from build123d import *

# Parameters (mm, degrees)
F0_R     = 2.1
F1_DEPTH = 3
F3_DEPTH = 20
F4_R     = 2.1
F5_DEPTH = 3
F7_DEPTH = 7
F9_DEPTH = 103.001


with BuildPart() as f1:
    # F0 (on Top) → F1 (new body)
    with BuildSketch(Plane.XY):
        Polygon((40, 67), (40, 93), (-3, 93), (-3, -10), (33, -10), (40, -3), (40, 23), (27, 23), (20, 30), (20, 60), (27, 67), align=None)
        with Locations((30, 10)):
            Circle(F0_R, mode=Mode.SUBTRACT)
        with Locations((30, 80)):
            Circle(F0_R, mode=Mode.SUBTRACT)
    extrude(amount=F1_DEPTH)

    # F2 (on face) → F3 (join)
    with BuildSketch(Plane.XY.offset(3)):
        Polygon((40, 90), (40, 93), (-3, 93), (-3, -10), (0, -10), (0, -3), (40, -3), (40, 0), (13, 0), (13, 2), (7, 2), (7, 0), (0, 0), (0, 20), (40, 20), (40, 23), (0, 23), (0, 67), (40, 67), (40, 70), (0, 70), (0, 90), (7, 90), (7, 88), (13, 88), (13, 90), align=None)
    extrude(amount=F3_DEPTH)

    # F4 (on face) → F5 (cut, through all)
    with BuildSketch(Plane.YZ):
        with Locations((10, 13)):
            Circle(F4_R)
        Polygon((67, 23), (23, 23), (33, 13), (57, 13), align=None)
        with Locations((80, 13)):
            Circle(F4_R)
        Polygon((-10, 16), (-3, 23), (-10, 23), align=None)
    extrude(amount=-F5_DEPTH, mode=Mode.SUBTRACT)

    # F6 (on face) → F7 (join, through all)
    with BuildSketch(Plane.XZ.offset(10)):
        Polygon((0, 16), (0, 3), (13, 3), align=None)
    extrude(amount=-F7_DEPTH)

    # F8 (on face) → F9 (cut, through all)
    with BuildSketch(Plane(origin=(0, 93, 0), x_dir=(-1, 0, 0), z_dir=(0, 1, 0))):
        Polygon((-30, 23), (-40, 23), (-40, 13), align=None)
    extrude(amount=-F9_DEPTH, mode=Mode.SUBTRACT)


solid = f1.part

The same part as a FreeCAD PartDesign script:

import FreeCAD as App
import Part
import Sketcher

doc = App.newDocument("Part")
body = doc.addObject("PartDesign::Body", "Body")

# Sketch on XY plane
sketch1 = doc.addObject("Sketcher::SketchObject", "Sketch")
body.addObject(sketch1)
sketch1.AttachmentSupport = (doc.XY_Plane, [""])
sketch1.MapMode = "FlatFace"
sketch1.addGeometry(Part.LineSegment(App.Vector(40, 67, 0), App.Vector(40, 93, 0)), False)
sketch1.addGeometry(Part.LineSegment(App.Vector(40, 93, 0), App.Vector(-3, 93, 0)), False)
sketch1.addGeometry(Part.LineSegment(App.Vector(-3, 93, 0), App.Vector(-3, -10, 0)), False)
sketch1.addGeometry(Part.LineSegment(App.Vector(-3, -10, 0), App.Vector(33, -10, 0)), False)
sketch1.addGeometry(Part.LineSegment(App.Vector(33, -10, 0), App.Vector(40, -3, 0)), False)
sketch1.addGeometry(Part.LineSegment(App.Vector(40, -3, 0), App.Vector(40, 23, 0)), False)
sketch1.addGeometry(Part.LineSegment(App.Vector(40, 23, 0), App.Vector(27, 23, 0)), False)
sketch1.addGeometry(Part.LineSegment(App.Vector(27, 23, 0), App.Vector(20, 30, 0)), False)
sketch1.addGeometry(Part.LineSegment(App.Vector(20, 30, 0), App.Vector(20, 60, 0)), False)
sketch1.addGeometry(Part.LineSegment(App.Vector(20, 60, 0), App.Vector(27, 67, 0)), False)
sketch1.addGeometry(Part.LineSegment(App.Vector(27, 67, 0), App.Vector(40, 67, 0)), False)
sketch1.addGeometry(Part.Circle(App.Vector(30, 10, 0), App.Vector(0, 0, 1), 2.1), False)
sketch1.addGeometry(Part.Circle(App.Vector(30, 80, 0), App.Vector(0, 0, 1), 2.1), False)
sketch1.addConstraint(Sketcher.Constraint("Coincident", 0, 2, 1, 1))
sketch1.addConstraint(Sketcher.Constraint("Coincident", 1, 2, 2, 1))
sketch1.addConstraint(Sketcher.Constraint("Coincident", 2, 2, 3, 1))
sketch1.addConstraint(Sketcher.Constraint("Coincident", 3, 2, 4, 1))
sketch1.addConstraint(Sketcher.Constraint("Coincident", 4, 2, 5, 1))
sketch1.addConstraint(Sketcher.Constraint("Coincident", 5, 2, 6, 1))
sketch1.addConstraint(Sketcher.Constraint("Coincident", 6, 2, 7, 1))
sketch1.addConstraint(Sketcher.Constraint("Coincident", 7, 2, 8, 1))
sketch1.addConstraint(Sketcher.Constraint("Coincident", 8, 2, 9, 1))
sketch1.addConstraint(Sketcher.Constraint("Coincident", 9, 2, 10, 1))
sketch1.addConstraint(Sketcher.Constraint("Coincident", 10, 2, 0, 1))
sketch1.addConstraint(Sketcher.Constraint("Vertical", 0))
sketch1.addConstraint(Sketcher.Constraint("Horizontal", 1))
sketch1.addConstraint(Sketcher.Constraint("Vertical", 2))
sketch1.addConstraint(Sketcher.Constraint("Horizontal", 3))
sketch1.addConstraint(Sketcher.Constraint("Vertical", 5))
sketch1.addConstraint(Sketcher.Constraint("Horizontal", 6))
sketch1.addConstraint(Sketcher.Constraint("Vertical", 8))
sketch1.addConstraint(Sketcher.Constraint("Horizontal", 10))
sketch1.addConstraint(Sketcher.Constraint("Equal", 11, 12))
sketch1.addConstraint(Sketcher.Constraint("Perpendicular", 4, 7))
sketch1.addConstraint(Sketcher.Constraint("Perpendicular", 7, 9))
sketch1.addConstraint(Sketcher.Constraint("Vertical", 11, 3, 12, 3))
sketch1.addConstraint(Sketcher.Constraint("Vertical", 0, 2, 4, 2))
sketch1.addConstraint(Sketcher.Constraint("Vertical", 6, 2, 9, 2))
sketch1.addConstraint(Sketcher.Constraint("Equal", 0, 5))
sketch1.addConstraint(Sketcher.Constraint("Equal", 4, 7))
sketch1.addConstraint(Sketcher.Constraint("Equal", 7, 9))
sketch1.addConstraint(Sketcher.Constraint("Diameter", 11, 4.2))
sketch1.addConstraint(Sketcher.Constraint("DistanceX", 1, 2, 1, 1, 43.0))
sketch1.addConstraint(Sketcher.Constraint("DistanceX", 3, 1, 3, 2, 36.0))
sketch1.addConstraint(Sketcher.Constraint("DistanceX", 6, 2, 6, 1, 13.0))
sketch1.addConstraint(Sketcher.Constraint("DistanceY", 0, 1, 0, 2, 26.0))
sketch1.addConstraint(Sketcher.Constraint("DistanceY", 2, 2, 2, 1, 103.0))
sketch1.addConstraint(Sketcher.Constraint("DistanceX", -1, 1, 11, 3, 30.0))
sketch1.addConstraint(Sketcher.Constraint("DistanceY", -1, 1, 11, 3, 10.0))
sketch1.addConstraint(Sketcher.Constraint("DistanceY", -1, 1, 12, 3, 80.0))
sketch1.addConstraint(Sketcher.Constraint("DistanceX", -1, 1, 0, 2, 40.0))
sketch1.addConstraint(Sketcher.Constraint("DistanceY", -1, 1, 0, 2, 93.0))
pad1 = doc.addObject("PartDesign::Pad", "Pad")
body.addObject(pad1)
pad1.Profile = sketch1
pad1.Length = 3

# Sketch on XY plane
sketch2 = doc.addObject("Sketcher::SketchObject", "Sketch001")
body.addObject(sketch2)
sketch2.AttachmentSupport = (doc.XY_Plane, [""])
sketch2.MapMode = "FlatFace"
sketch2.AttachmentOffset = App.Placement(App.Vector(0, 0, 3), App.Rotation())
sketch2.addGeometry(Part.LineSegment(App.Vector(40, 90, 0), App.Vector(40, 93, 0)), False)
sketch2.addGeometry(Part.LineSegment(App.Vector(40, 93, 0), App.Vector(-3, 93, 0)), False)
sketch2.addGeometry(Part.LineSegment(App.Vector(-3, 93, 0), App.Vector(-3, -10, 0)), False)
sketch2.addGeometry(Part.LineSegment(App.Vector(-3, -10, 0), App.Vector(0, -10, 0)), False)
sketch2.addGeometry(Part.LineSegment(App.Vector(0, -10, 0), App.Vector(0, -3, 0)), False)
sketch2.addGeometry(Part.LineSegment(App.Vector(0, -3, 0), App.Vector(40, -3, 0)), False)
sketch2.addGeometry(Part.LineSegment(App.Vector(40, -3, 0), App.Vector(40, 0, 0)), False)
sketch2.addGeometry(Part.LineSegment(App.Vector(40, 0, 0), App.Vector(13, 0, 0)), False)
sketch2.addGeometry(Part.LineSegment(App.Vector(13, 0, 0), App.Vector(13, 2, 0)), False)
sketch2.addGeometry(Part.LineSegment(App.Vector(13, 2, 0), App.Vector(7, 2, 0)), False)
sketch2.addGeometry(Part.LineSegment(App.Vector(7, 2, 0), App.Vector(7, 0, 0)), False)
sketch2.addGeometry(Part.LineSegment(App.Vector(7, 0, 0), App.Vector(0, 0, 0)), False)
sketch2.addGeometry(Part.LineSegment(App.Vector(0, 0, 0), App.Vector(0, 20, 0)), False)
sketch2.addGeometry(Part.LineSegment(App.Vector(0, 20, 0), App.Vector(40, 20, 0)), False)
sketch2.addGeometry(Part.LineSegment(App.Vector(40, 20, 0), App.Vector(40, 23, 0)), False)
sketch2.addGeometry(Part.LineSegment(App.Vector(40, 23, 0), App.Vector(0, 23, 0)), False)
sketch2.addGeometry(Part.LineSegment(App.Vector(0, 23, 0), App.Vector(0, 67, 0)), False)
sketch2.addGeometry(Part.LineSegment(App.Vector(0, 67, 0), App.Vector(40, 67, 0)), False)
sketch2.addGeometry(Part.LineSegment(App.Vector(40, 67, 0), App.Vector(40, 70, 0)), False)
sketch2.addGeometry(Part.LineSegment(App.Vector(40, 70, 0), App.Vector(0, 70, 0)), False)
sketch2.addGeometry(Part.LineSegment(App.Vector(0, 70, 0), App.Vector(0, 90, 0)), False)
sketch2.addGeometry(Part.LineSegment(App.Vector(0, 90, 0), App.Vector(7, 90, 0)), False)
sketch2.addGeometry(Part.LineSegment(App.Vector(7, 90, 0), App.Vector(7, 88, 0)), False)
sketch2.addGeometry(Part.LineSegment(App.Vector(7, 88, 0), App.Vector(13, 88, 0)), False)
sketch2.addGeometry(Part.LineSegment(App.Vector(13, 88, 0), App.Vector(13, 90, 0)), False)
sketch2.addGeometry(Part.LineSegment(App.Vector(13, 90, 0), App.Vector(40, 90, 0)), False)
sketch2.addConstraint(Sketcher.Constraint("Coincident", 0, 2, 1, 1))
sketch2.addConstraint(Sketcher.Constraint("Coincident", 1, 2, 2, 1))
sketch2.addConstraint(Sketcher.Constraint("Coincident", 2, 2, 3, 1))
sketch2.addConstraint(Sketcher.Constraint("Coincident", 3, 2, 4, 1))
sketch2.addConstraint(Sketcher.Constraint("Coincident", 4, 2, 5, 1))
sketch2.addConstraint(Sketcher.Constraint("Coincident", 5, 2, 6, 1))
sketch2.addConstraint(Sketcher.Constraint("Coincident", 6, 2, 7, 1))
sketch2.addConstraint(Sketcher.Constraint("Coincident", 7, 2, 8, 1))
sketch2.addConstraint(Sketcher.Constraint("Coincident", 8, 2, 9, 1))
sketch2.addConstraint(Sketcher.Constraint("Coincident", 9, 2, 10, 1))
sketch2.addConstraint(Sketcher.Constraint("Coincident", 10, 2, 11, 1))
sketch2.addConstraint(Sketcher.Constraint("Coincident", 11, 2, 12, 1))
sketch2.addConstraint(Sketcher.Constraint("Coincident", 12, 2, 13, 1))
sketch2.addConstraint(Sketcher.Constraint("Coincident", 13, 2, 14, 1))
sketch2.addConstraint(Sketcher.Constraint("Coincident", 14, 2, 15, 1))
sketch2.addConstraint(Sketcher.Constraint("Coincident", 15, 2, 16, 1))
sketch2.addConstraint(Sketcher.Constraint("Coincident", 16, 2, 17, 1))
sketch2.addConstraint(Sketcher.Constraint("Coincident", 17, 2, 18, 1))
sketch2.addConstraint(Sketcher.Constraint("Coincident", 18, 2, 19, 1))
sketch2.addConstraint(Sketcher.Constraint("Coincident", 19, 2, 20, 1))
sketch2.addConstraint(Sketcher.Constraint("Coincident", 20, 2, 21, 1))
sketch2.addConstraint(Sketcher.Constraint("Coincident", 21, 2, 22, 1))
sketch2.addConstraint(Sketcher.Constraint("Coincident", 22, 2, 23, 1))
sketch2.addConstraint(Sketcher.Constraint("Coincident", 23, 2, 24, 1))
sketch2.addConstraint(Sketcher.Constraint("Coincident", 24, 2, 25, 1))
sketch2.addConstraint(Sketcher.Constraint("Coincident", 25, 2, 0, 1))
sketch2.addConstraint(Sketcher.Constraint("Vertical", 0))
sketch2.addConstraint(Sketcher.Constraint("Horizontal", 1))
sketch2.addConstraint(Sketcher.Constraint("Vertical", 2))
sketch2.addConstraint(Sketcher.Constraint("Horizontal", 3))
sketch2.addConstraint(Sketcher.Constraint("Vertical", 4))
sketch2.addConstraint(Sketcher.Constraint("Horizontal", 5))
sketch2.addConstraint(Sketcher.Constraint("Vertical", 6))
sketch2.addConstraint(Sketcher.Constraint("Horizontal", 7))
sketch2.addConstraint(Sketcher.Constraint("Vertical", 8))
sketch2.addConstraint(Sketcher.Constraint("Horizontal", 9))
sketch2.addConstraint(Sketcher.Constraint("Vertical", 10))
sketch2.addConstraint(Sketcher.Constraint("Horizontal", 11))
sketch2.addConstraint(Sketcher.Constraint("Vertical", 12))
sketch2.addConstraint(Sketcher.Constraint("Horizontal", 13))
sketch2.addConstraint(Sketcher.Constraint("Vertical", 14))
sketch2.addConstraint(Sketcher.Constraint("Horizontal", 15))
sketch2.addConstraint(Sketcher.Constraint("Vertical", 16))
sketch2.addConstraint(Sketcher.Constraint("Horizontal", 17))
sketch2.addConstraint(Sketcher.Constraint("Vertical", 18))
sketch2.addConstraint(Sketcher.Constraint("Horizontal", 19))
sketch2.addConstraint(Sketcher.Constraint("Vertical", 20))
sketch2.addConstraint(Sketcher.Constraint("Horizontal", 21))
sketch2.addConstraint(Sketcher.Constraint("Vertical", 22))
sketch2.addConstraint(Sketcher.Constraint("Horizontal", 23))
sketch2.addConstraint(Sketcher.Constraint("Vertical", 24))
sketch2.addConstraint(Sketcher.Constraint("Horizontal", 25))
sketch2.addConstraint(Sketcher.Constraint("Coincident", 11, 2, -1, 1))
sketch2.addConstraint(Sketcher.Constraint("PointOnObject", 3, 2, -2))
sketch2.addConstraint(Sketcher.Constraint("PointOnObject", 6, 2, -1))
sketch2.addConstraint(Sketcher.Constraint("PointOnObject", 15, 2, -2))
sketch2.addConstraint(Sketcher.Constraint("PointOnObject", 19, 2, -2))
sketch2.addConstraint(Sketcher.Constraint("Horizontal", 21, 2, 24, 2))
sketch2.addConstraint(Sketcher.Constraint("Vertical", 0, 2, 5, 2))
sketch2.addConstraint(Sketcher.Constraint("Vertical", 6, 2, 13, 2))
sketch2.addConstraint(Sketcher.Constraint("Vertical", 14, 2, 17, 2))
sketch2.addConstraint(Sketcher.Constraint("Vertical", 10, 2, 21, 2))
sketch2.addConstraint(Sketcher.Constraint("Vertical", 8, 2, 23, 2))
sketch2.addConstraint(Sketcher.Constraint("Equal", 3, 0))
sketch2.addConstraint(Sketcher.Constraint("Equal", 21, 4))
sketch2.addConstraint(Sketcher.Constraint("Equal", 0, 6))
sketch2.addConstraint(Sketcher.Constraint("Equal", 6, 14))
sketch2.addConstraint(Sketcher.Constraint("Equal", 14, 18))
sketch2.addConstraint(Sketcher.Constraint("Equal", 12, 20))
sketch2.addConstraint(Sketcher.Constraint("Equal", 10, 22))
sketch2.addConstraint(Sketcher.Constraint("DistanceX", 1, 2, 1, 1, 43.0))
sketch2.addConstraint(Sketcher.Constraint("DistanceX", 3, 1, 3, 2, 3.0))
sketch2.addConstraint(Sketcher.Constraint("DistanceX", 7, 2, 7, 1, 27.0))
sketch2.addConstraint(Sketcher.Constraint("DistanceX", 9, 2, 9, 1, 6.0))
sketch2.addConstraint(Sketcher.Constraint("DistanceY", 2, 2, 2, 1, 103.0))
sketch2.addConstraint(Sketcher.Constraint("DistanceY", 8, 1, 8, 2, 2.0))
sketch2.addConstraint(Sketcher.Constraint("DistanceY", 12, 1, 12, 2, 20.0))
pad2 = doc.addObject("PartDesign::Pad", "Pad001")
body.addObject(pad2)
pad2.Profile = sketch2
pad2.Length = 20

# Sketch on YZ plane
sketch3 = doc.addObject("Sketcher::SketchObject", "Sketch002")
body.addObject(sketch3)
sketch3.AttachmentSupport = (doc.YZ_Plane, [""])
sketch3.MapMode = "FlatFace"
sketch3.addGeometry(Part.Circle(App.Vector(10, 13, 0), App.Vector(0, 0, 1), 2.1), False)
sketch3.addGeometry(Part.LineSegment(App.Vector(67, 23, 0), App.Vector(23, 23, 0)), False)
sketch3.addGeometry(Part.LineSegment(App.Vector(23, 23, 0), App.Vector(33, 13, 0)), False)
sketch3.addGeometry(Part.LineSegment(App.Vector(33, 13, 0), App.Vector(57, 13, 0)), False)
sketch3.addGeometry(Part.LineSegment(App.Vector(57, 13, 0), App.Vector(67, 23, 0)), False)
sketch3.addGeometry(Part.Circle(App.Vector(80, 13, 0), App.Vector(0, 0, 1), 2.1), False)
sketch3.addGeometry(Part.LineSegment(App.Vector(-10, 16, 0), App.Vector(-3, 23, 0)), False)
sketch3.addGeometry(Part.LineSegment(App.Vector(-3, 23, 0), App.Vector(-10, 23, 0)), False)
sketch3.addGeometry(Part.LineSegment(App.Vector(-10, 23, 0), App.Vector(-10, 16, 0)), False)
sketch3.addConstraint(Sketcher.Constraint("Coincident", 1, 2, 2, 1))
sketch3.addConstraint(Sketcher.Constraint("Coincident", 2, 2, 3, 1))
sketch3.addConstraint(Sketcher.Constraint("Coincident", 3, 2, 4, 1))
sketch3.addConstraint(Sketcher.Constraint("Coincident", 4, 2, 1, 1))
sketch3.addConstraint(Sketcher.Constraint("Coincident", 6, 2, 7, 1))
sketch3.addConstraint(Sketcher.Constraint("Coincident", 7, 2, 8, 1))
sketch3.addConstraint(Sketcher.Constraint("Coincident", 8, 2, 6, 1))
sketch3.addConstraint(Sketcher.Constraint("Horizontal", 1))
sketch3.addConstraint(Sketcher.Constraint("Horizontal", 3))
sketch3.addConstraint(Sketcher.Constraint("Horizontal", 7))
sketch3.addConstraint(Sketcher.Constraint("Vertical", 8))
sketch3.addConstraint(Sketcher.Constraint("Equal", 0, 5))
sketch3.addConstraint(Sketcher.Constraint("Perpendicular", 2, 4))
sketch3.addConstraint(Sketcher.Constraint("Parallel", 4, 6))
sketch3.addConstraint(Sketcher.Constraint("Horizontal", 0, 3, 5, 3))
sketch3.addConstraint(Sketcher.Constraint("Horizontal", 5, 3, 2, 2))
sketch3.addConstraint(Sketcher.Constraint("Horizontal", 4, 2, 6, 2))
sketch3.addConstraint(Sketcher.Constraint("Equal", 7, 8))
sketch3.addConstraint(Sketcher.Constraint("Diameter", 0, 4.2))
sketch3.addConstraint(Sketcher.Constraint("DistanceX", 1, 2, 1, 1, 44.0))
sketch3.addConstraint(Sketcher.Constraint("DistanceX", 3, 1, 3, 2, 24.0))
sketch3.addConstraint(Sketcher.Constraint("DistanceX", 7, 2, 7, 1, 7.0))
sketch3.addConstraint(Sketcher.Constraint("DistanceX", -1, 1, 0, 3, 10.0))
sketch3.addConstraint(Sketcher.Constraint("DistanceY", -1, 1, 0, 3, 13.0))
sketch3.addConstraint(Sketcher.Constraint("DistanceX", -1, 1, 5, 3, 80.0))
sketch3.addConstraint(Sketcher.Constraint("DistanceX", -1, 1, 1, 2, 23.0))
sketch3.addConstraint(Sketcher.Constraint("DistanceX", 6, 2, -1, 1, 3.0))
pocket1 = doc.addObject("PartDesign::Pocket", "Pocket")
body.addObject(pocket1)
pocket1.Profile = sketch3
pocket1.Type = "ThroughAll"

# Sketch on XZ plane
sketch4 = doc.addObject("Sketcher::SketchObject", "Sketch003")
body.addObject(sketch4)
sketch4.AttachmentSupport = (doc.XZ_Plane, [""])
sketch4.MapMode = "FlatFace"
sketch4.AttachmentOffset = App.Placement(App.Vector(0, 0, 10), App.Rotation())
sketch4.addGeometry(Part.LineSegment(App.Vector(0, 16, 0), App.Vector(0, 3, 0)), False)
sketch4.addGeometry(Part.LineSegment(App.Vector(0, 3, 0), App.Vector(13, 3, 0)), False)
sketch4.addGeometry(Part.LineSegment(App.Vector(13, 3, 0), App.Vector(0, 16, 0)), False)
sketch4.addConstraint(Sketcher.Constraint("Coincident", 0, 2, 1, 1))
sketch4.addConstraint(Sketcher.Constraint("Coincident", 1, 2, 2, 1))
sketch4.addConstraint(Sketcher.Constraint("Coincident", 2, 2, 0, 1))
sketch4.addConstraint(Sketcher.Constraint("Vertical", 0))
sketch4.addConstraint(Sketcher.Constraint("Horizontal", 1))
sketch4.addConstraint(Sketcher.Constraint("PointOnObject", 0, 2, -2))
sketch4.addConstraint(Sketcher.Constraint("Equal", 1, 0))
sketch4.addConstraint(Sketcher.Constraint("DistanceX", 1, 1, 1, 2, 13.0))
sketch4.addConstraint(Sketcher.Constraint("DistanceY", -1, 1, 0, 2, 3.0))
pad3 = doc.addObject("PartDesign::Pad", "Pad002")
body.addObject(pad3)
pad3.Profile = sketch4
pad3.Length = 7
pad3.Reversed = True

# Sketch on XZ plane
sketch5 = doc.addObject("Sketcher::SketchObject", "Sketch004")
body.addObject(sketch5)
sketch5.AttachmentSupport = (doc.XZ_Plane, [""])
sketch5.MapMode = "FlatFace"
sketch5.AttachmentOffset = App.Placement(App.Vector(0, 0, -93), App.Rotation())
sketch5.addGeometry(Part.LineSegment(App.Vector(30, 23, 0), App.Vector(40, 23, 0)), False)
sketch5.addGeometry(Part.LineSegment(App.Vector(40, 23, 0), App.Vector(40, 13, 0)), False)
sketch5.addGeometry(Part.LineSegment(App.Vector(40, 13, 0), App.Vector(30, 23, 0)), False)
sketch5.addConstraint(Sketcher.Constraint("Coincident", 0, 2, 1, 1))
sketch5.addConstraint(Sketcher.Constraint("Coincident", 1, 2, 2, 1))
sketch5.addConstraint(Sketcher.Constraint("Coincident", 2, 2, 0, 1))
sketch5.addConstraint(Sketcher.Constraint("Horizontal", 0))
sketch5.addConstraint(Sketcher.Constraint("Vertical", 1))
sketch5.addConstraint(Sketcher.Constraint("Equal", 0, 1))
sketch5.addConstraint(Sketcher.Constraint("DistanceX", 0, 1, 0, 2, 10.0))
sketch5.addConstraint(Sketcher.Constraint("DistanceX", -1, 1, 0, 2, 40.0))
sketch5.addConstraint(Sketcher.Constraint("DistanceY", -1, 1, 0, 2, 23.0))
pocket2 = doc.addObject("PartDesign::Pocket", "Pocket001")
body.addObject(pocket2)
pocket2.Profile = sketch5
pocket2.Type = "ThroughAll"
pocket2.Reversed = True

doc.recompute()
